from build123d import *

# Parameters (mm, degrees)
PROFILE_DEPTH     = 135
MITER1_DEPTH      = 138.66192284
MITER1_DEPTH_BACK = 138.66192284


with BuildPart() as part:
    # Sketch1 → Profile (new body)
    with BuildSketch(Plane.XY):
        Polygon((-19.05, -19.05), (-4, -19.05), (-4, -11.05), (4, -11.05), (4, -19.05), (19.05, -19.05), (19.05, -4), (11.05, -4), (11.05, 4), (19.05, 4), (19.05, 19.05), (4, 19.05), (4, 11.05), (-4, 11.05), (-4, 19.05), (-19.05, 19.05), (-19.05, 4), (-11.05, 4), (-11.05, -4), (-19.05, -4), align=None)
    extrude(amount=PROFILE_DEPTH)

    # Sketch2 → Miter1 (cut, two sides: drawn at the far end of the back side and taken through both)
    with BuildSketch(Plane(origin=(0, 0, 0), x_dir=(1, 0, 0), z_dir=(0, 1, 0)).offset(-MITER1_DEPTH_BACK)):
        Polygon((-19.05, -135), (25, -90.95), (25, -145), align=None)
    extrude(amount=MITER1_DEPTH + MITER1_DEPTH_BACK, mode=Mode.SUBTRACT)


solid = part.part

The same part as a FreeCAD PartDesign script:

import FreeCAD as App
import Part
import Sketcher
Q = App.Units.Quantity


def add_polygon(sketch, points):
    """Adds a closed chain of lines whose ends are joined by coincident constraints."""
    first, n = sketch.GeometryCount, len(points)
    for a, b in zip(points, points[1:] + points[:1]):
        sketch.addGeometry(Part.LineSegment(App.Vector(*a, 0), App.Vector(*b, 0)), False)
    for i in range(n):
        sketch.addConstraint(Sketcher.Constraint("Coincident", first + i, 2, first + (i + 1) % n, 1))

doc = App.newDocument("Part")
body = doc.addObject("PartDesign::Body", "Body")

# Sketch on XY plane
sketch1 = doc.addObject("Sketcher::SketchObject", "Sketch")
body.addObject(sketch1)
sketch1.AttachmentSupport = (doc.XY_Plane, [""])
sketch1.MapMode = "FlatFace"
add_polygon(sketch1, [(-19, -19), (-4, -19), (-4, -11), (4, -11), (4, -19), (19, -19), (19, -4), (11, -4), (11, 4), (19, 4), (19, 19), (4, 19), (4, 11), (-4, 11), (-4, 19), (-19, 19), (-19, 4), (-11, 4), (-11, -4), (-19, -4)])  # lines 0-19
sketch1.addConstraint(Sketcher.Constraint("Horizontal", 0))
sketch1.addConstraint(Sketcher.Constraint("Vertical", 1))
sketch1.addConstraint(Sketcher.Constraint("Horizontal", 2))
sketch1.addConstraint(Sketcher.Constraint("Vertical", 3))
sketch1.addConstraint(Sketcher.Constraint("Horizontal", 4))
sketch1.addConstraint(Sketcher.Constraint("Vertical", 5))
sketch1.addConstraint(Sketcher.Constraint("Horizontal", 6))
sketch1.addConstraint(Sketcher.Constraint("Vertical", 7))
sketch1.addConstraint(Sketcher.Constraint("Horizontal", 8))
sketch1.addConstraint(Sketcher.Constraint("Vertical", 9))
sketch1.addConstraint(Sketcher.Constraint("Horizontal", 10))
sketch1.addConstraint(Sketcher.Constraint("Vertical", 11))
sketch1.addConstraint(Sketcher.Constraint("Horizontal", 12))
sketch1.addConstraint(Sketcher.Constraint("Vertical", 13))
sketch1.addConstraint(Sketcher.Constraint("Horizontal", 14))
sketch1.addConstraint(Sketcher.Constraint("Vertical", 15))
sketch1.addConstraint(Sketcher.Constraint("Horizontal", 16))
sketch1.addConstraint(Sketcher.Constraint("Vertical", 17))
sketch1.addConstraint(Sketcher.Constraint("Horizontal", 18))
sketch1.addConstraint(Sketcher.Constraint("Vertical", 19))
sketch1.addConstraint(Sketcher.Constraint("Symmetric", 0, 2, 10, 2, -1, 1))
sketch1.addConstraint(Sketcher.Constraint("Symmetric", 2, 2, 12, 2, -1, 1))
sketch1.addConstraint(Sketcher.Constraint("Symmetric", 4, 2, 14, 2, -1, 1))
sketch1.addConstraint(Sketcher.Constraint("Symmetric", 6, 2, 16, 2, -1, 1))
sketch1.addConstraint(Sketcher.Constraint("Symmetric", 8, 2, 18, 2, -1, 1))
sketch1.addConstraint(Sketcher.Constraint("Symmetric", 0, 2, 3, 2, -2))
sketch1.addConstraint(Sketcher.Constraint("Symmetric", 8, 2, 15, 2, -2))
sketch1.addConstraint(Sketcher.Constraint("Equal", 2, 6))
sketch1.addConstraint(Sketcher.Constraint("Equal", 18, 1))
sketch1.addConstraint(Sketcher.Constraint("Equal", 14, 5))
sketch1.addConstraint(Sketcher.Constraint("Equal", 3, 7))
sketch1.addConstraint(Sketcher.Constraint("DistanceX", 2, 1, 2, 2, Q("8 mm")))
sketch1.addConstraint(Sketcher.Constraint("DistanceX", 0, 1, 0, 2, Q("15.05 mm")))
pad1 = doc.addObject("PartDesign::Pad", "Pad")
body.addObject(pad1)
pad1.Profile = sketch1
pad1.Length = 135

# Sketch on XZ plane
sketch2 = doc.addObject("Sketcher::SketchObject", "Sketch001")
body.addObject(sketch2)
sketch2.AttachmentSupport = (doc.XZ_Plane, [""])
sketch2.MapMode = "FlatFace"
add_polygon(sketch2, [(25, 91), (-19, 135), (25, 145)])  # lines 0-2
sketch2.addConstraint(Sketcher.Constraint("Vertical", 2))
sketch2.addConstraint(Sketcher.Constraint("Angle", 0, Q("135 deg")))
sketch2.addConstraint(Sketcher.Constraint("DistanceY", -1, 1, 0, 2, Q("135 mm")))
sketch2.addConstraint(Sketcher.Constraint("DistanceX", -1, 1, 1, 2, Q("25 mm")))
sketch2.addConstraint(Sketcher.Constraint("DistanceY", -1, 1, 1, 2, Q("145 mm")))
sketch2.addConstraint(Sketcher.Constraint("DistanceY", 2, 2, 2, 1, Q("54.05 mm")))
pocket1 = doc.addObject("PartDesign::Pocket", "Pocket")
body.addObject(pocket1)
pocket1.Profile = sketch2
pocket1.Type = "ThroughAll"
pocket1.Midplane = True

doc.recompute()
